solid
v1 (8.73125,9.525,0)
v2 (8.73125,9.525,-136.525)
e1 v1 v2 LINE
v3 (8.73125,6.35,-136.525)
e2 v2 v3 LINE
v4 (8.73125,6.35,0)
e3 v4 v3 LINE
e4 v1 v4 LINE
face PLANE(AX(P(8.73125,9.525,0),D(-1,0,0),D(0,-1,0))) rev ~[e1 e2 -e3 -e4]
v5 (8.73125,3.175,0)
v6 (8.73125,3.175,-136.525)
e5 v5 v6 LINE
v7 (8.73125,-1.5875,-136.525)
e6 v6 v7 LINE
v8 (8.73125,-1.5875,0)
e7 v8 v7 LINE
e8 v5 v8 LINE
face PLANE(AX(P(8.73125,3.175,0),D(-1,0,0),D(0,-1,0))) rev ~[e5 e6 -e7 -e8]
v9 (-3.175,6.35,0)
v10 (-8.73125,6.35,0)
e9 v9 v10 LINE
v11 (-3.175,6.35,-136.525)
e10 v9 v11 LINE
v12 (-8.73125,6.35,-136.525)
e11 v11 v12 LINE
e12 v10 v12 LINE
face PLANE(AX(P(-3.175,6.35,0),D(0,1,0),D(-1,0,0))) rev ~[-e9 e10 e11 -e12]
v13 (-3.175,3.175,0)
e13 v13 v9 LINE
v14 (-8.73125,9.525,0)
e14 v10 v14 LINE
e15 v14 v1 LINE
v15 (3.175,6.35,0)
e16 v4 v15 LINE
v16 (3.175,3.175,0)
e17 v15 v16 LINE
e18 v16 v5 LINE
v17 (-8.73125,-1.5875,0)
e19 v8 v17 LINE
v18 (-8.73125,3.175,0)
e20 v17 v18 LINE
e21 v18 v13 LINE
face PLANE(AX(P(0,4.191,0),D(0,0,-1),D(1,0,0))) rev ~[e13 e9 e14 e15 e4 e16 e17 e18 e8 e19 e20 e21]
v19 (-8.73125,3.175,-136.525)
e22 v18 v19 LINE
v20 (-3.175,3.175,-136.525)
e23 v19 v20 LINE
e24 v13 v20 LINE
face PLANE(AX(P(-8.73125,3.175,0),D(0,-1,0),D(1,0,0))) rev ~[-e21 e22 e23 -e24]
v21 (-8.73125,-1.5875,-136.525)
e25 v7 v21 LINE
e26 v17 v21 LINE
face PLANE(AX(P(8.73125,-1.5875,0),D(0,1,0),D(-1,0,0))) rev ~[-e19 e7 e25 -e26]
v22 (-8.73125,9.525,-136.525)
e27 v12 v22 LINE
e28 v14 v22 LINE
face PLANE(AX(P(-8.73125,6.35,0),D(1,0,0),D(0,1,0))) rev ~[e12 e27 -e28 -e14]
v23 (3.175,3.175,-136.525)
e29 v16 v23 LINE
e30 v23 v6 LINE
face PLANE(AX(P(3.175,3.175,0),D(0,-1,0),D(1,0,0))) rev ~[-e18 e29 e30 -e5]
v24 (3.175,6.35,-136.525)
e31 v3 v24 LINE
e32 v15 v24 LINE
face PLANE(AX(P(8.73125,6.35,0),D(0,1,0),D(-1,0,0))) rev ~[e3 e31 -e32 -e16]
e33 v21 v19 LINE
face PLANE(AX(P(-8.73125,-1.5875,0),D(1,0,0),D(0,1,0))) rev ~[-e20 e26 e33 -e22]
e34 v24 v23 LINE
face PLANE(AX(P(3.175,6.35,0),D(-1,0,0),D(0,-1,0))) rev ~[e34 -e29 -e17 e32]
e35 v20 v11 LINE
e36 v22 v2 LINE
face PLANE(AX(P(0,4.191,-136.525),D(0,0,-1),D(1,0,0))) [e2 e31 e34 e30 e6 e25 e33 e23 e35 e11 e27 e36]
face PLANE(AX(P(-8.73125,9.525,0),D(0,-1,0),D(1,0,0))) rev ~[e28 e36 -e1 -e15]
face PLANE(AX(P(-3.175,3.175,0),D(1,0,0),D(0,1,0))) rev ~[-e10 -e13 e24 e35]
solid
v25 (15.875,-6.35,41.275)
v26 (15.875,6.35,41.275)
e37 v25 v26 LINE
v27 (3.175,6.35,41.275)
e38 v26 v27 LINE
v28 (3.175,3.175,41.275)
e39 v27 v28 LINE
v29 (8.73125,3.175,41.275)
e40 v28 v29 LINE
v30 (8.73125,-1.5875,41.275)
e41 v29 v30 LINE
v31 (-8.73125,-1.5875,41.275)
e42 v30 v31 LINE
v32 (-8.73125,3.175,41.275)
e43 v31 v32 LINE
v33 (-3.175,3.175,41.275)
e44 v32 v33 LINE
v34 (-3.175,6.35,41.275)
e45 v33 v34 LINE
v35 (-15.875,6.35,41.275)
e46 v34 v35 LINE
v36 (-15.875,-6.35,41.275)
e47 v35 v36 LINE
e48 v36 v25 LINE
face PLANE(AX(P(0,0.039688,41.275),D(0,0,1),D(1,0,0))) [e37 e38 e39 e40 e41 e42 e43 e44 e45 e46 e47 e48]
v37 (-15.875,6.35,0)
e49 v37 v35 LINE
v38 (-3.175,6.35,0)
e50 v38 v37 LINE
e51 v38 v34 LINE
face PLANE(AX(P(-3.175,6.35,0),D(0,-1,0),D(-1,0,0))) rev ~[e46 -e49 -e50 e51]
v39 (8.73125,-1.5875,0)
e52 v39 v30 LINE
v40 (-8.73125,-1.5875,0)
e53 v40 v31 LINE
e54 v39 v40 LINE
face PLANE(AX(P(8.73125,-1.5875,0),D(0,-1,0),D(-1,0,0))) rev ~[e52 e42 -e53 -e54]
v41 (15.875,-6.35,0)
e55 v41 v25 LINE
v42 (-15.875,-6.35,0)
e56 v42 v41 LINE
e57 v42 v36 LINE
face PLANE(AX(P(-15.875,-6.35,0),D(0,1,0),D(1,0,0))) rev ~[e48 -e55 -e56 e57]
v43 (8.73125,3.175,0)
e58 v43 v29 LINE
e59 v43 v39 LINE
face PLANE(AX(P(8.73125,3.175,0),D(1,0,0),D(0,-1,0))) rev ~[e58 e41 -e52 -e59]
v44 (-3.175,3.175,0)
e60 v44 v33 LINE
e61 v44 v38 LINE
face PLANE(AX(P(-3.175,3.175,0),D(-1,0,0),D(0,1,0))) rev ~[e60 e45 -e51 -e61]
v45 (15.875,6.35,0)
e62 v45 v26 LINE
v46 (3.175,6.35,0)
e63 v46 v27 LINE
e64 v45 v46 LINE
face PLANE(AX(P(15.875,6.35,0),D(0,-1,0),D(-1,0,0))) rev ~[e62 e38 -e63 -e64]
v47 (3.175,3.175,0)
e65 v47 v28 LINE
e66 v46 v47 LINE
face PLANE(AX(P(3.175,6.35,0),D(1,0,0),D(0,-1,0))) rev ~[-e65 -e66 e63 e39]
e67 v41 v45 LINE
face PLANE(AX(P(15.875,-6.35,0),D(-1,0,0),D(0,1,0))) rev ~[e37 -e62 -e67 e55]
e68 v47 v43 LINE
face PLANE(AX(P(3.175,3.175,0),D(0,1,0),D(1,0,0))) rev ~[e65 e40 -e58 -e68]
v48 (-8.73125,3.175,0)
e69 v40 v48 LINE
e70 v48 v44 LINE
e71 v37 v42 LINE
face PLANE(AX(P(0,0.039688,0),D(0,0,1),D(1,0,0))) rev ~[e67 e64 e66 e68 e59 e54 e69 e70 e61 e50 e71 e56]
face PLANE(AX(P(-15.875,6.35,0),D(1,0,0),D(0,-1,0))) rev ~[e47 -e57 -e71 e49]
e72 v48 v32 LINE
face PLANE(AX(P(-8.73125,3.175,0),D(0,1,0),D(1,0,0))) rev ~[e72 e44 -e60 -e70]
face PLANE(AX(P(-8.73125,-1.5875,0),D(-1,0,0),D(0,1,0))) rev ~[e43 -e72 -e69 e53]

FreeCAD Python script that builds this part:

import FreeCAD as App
import Part
import Sketcher

V = App.Vector
Q = App.Units.Quantity


def add_polygon(sketch, points):
    """Adds a closed chain of lines whose ends are joined by coincident constraints."""
    first, n = sketch.GeometryCount, len(points)
    for a, b in zip(points, points[1:] + points[:1]):
        sketch.addGeometry(Part.LineSegment(App.Vector(*a, 0), App.Vector(*b, 0)), False)
    for i in range(n):
        sketch.addConstraint(Sketcher.Constraint("Coincident", first + i, 2, first + (i + 1) % n, 1))

doc = App.newDocument("Part")
body = doc.addObject("PartDesign::Body", "Body")

sketch1 = doc.addObject("Sketcher::SketchObject", "Sketch")
body.addObject(sketch1)
sketch1.AttachmentSupport = (doc.XY_Plane, [""])
sketch1.MapMode = "FlatFace"
add_polygon(sketch1, [(15.9, -6.3), (15.9, 6.3), (3.2, 6.3), (3.2, 3.2), (8.7, 3.2), (8.7, -1.6), (-8.7, -1.6), (-8.7, 3.2), (-3.2, 3.2), (-3.2, 6.3), (-15.9, 6.3), (-15.9, -6.3)])
sketch1.addConstraint([
    Sketcher.Constraint("Vertical", 0),
    Sketcher.Constraint("Horizontal", 1),
    Sketcher.Constraint("Vertical", 2),
    Sketcher.Constraint("Horizontal", 3),
    Sketcher.Constraint("Vertical", 4),
    Sketcher.Constraint("Horizontal", 5),
    Sketcher.Constraint("Vertical", 6),
    Sketcher.Constraint("Horizontal", 7),
    Sketcher.Constraint("Vertical", 8),
    Sketcher.Constraint("Horizontal", 9),
    Sketcher.Constraint("Vertical", 10),
    Sketcher.Constraint("Horizontal", 11),
    Sketcher.Constraint("Symmetric", 0, 2, 10, 2, -1, 1),
    Sketcher.Constraint("Symmetric", 3, 2, 6, 2, -2),
    Sketcher.Constraint("Symmetric", 1, 2, 8, 2, -2),
    Sketcher.Constraint("Equal", 9, 0),
    Sketcher.Constraint("DistanceX", 1, 2, 1, 1, Q("0.5 in")),
    Sketcher.Constraint("DistanceX", 11, 1, 11, 2, Q("1.25 in")),
    Sketcher.Constraint("DistanceX", 3, 1, 3, 2, Q("0.21875 in")),
    Sketcher.Constraint("DistanceY", 2, 2, 2, 1, Q("0.125 in")),
    Sketcher.Constraint("DistanceY", 4, 2, 4, 1, Q("0.1875 in")),
])
pad1 = doc.addObject("PartDesign::Pad", "Pad")
body.addObject(pad1)
pad1.Profile = sketch1
pad1.Length = Q("1.625 in")
body2 = doc.addObject("PartDesign::Body", "Body001")

sketch2 = doc.addObject("Sketcher::SketchObject", "Sketch001")
body2.addObject(sketch2)
sketch2.AttachmentSupport = (doc.getObject("XY_Plane001"), [""])
sketch2.MapMode = "FlatFace"
add_polygon(sketch2, [(3.2, 3.2), (8.7, 3.2), (8.7, -1.6), (-8.7, -1.6), (-8.7, 3.2), (-3.2, 3.2), (-3.2, 6.3), (-8.7, 6.3), (-8.7, 9.5), (8.7, 9.5), (8.7, 6.3), (3.2, 6.3)])
sketch2.addConstraint([
    Sketcher.Constraint("Horizontal", 0),
    Sketcher.Constraint("Vertical", 1),
    Sketcher.Constraint("Horizontal", 2),
    Sketcher.Constraint("Vertical", 3),
    Sketcher.Constraint("Horizontal", 4),
    Sketcher.Constraint("Vertical", 5),
    Sketcher.Constraint("Horizontal", 6),
    Sketcher.Constraint("Vertical", 7),
    Sketcher.Constraint("Horizontal", 8),
    Sketcher.Constraint("Vertical", 9),
    Sketcher.Constraint("Horizontal", 10),
    Sketcher.Constraint("Vertical", 11),
    Sketcher.Constraint("Symmetric", 0, 2, 3, 2, -2),
    Sketcher.Constraint("Symmetric", 6, 2, 9, 2, -2),
    Sketcher.Constraint("Vertical", 3, 2, 6, 2),
    Sketcher.Constraint("Equal", 0, 4),
    Sketcher.Constraint("Equal", 5, 7),
    Sketcher.Constraint("DistanceX", 0, 1, 0, 2, Q("0.21875 in")),
    Sketcher.Constraint("DistanceX", 2, 2, 2, 1, Q("0.6875 in")),
    Sketcher.Constraint("DistanceY", 1, 2, 1, 1, Q("0.1875 in")),
    Sketcher.Constraint("DistanceY", 5, 1, 5, 2, Q("0.125 in")),
    Sketcher.Constraint("DistanceY", -1, 1, 5, 2, Q("0.25 in")),
])
pad2 = doc.addObject("PartDesign::Pad", "Pad001")
body2.addObject(pad2)
pad2.Profile = sketch2
pad2.Length = Q("5.375 in")
pad2.Reversed = True

doc.recompute()
